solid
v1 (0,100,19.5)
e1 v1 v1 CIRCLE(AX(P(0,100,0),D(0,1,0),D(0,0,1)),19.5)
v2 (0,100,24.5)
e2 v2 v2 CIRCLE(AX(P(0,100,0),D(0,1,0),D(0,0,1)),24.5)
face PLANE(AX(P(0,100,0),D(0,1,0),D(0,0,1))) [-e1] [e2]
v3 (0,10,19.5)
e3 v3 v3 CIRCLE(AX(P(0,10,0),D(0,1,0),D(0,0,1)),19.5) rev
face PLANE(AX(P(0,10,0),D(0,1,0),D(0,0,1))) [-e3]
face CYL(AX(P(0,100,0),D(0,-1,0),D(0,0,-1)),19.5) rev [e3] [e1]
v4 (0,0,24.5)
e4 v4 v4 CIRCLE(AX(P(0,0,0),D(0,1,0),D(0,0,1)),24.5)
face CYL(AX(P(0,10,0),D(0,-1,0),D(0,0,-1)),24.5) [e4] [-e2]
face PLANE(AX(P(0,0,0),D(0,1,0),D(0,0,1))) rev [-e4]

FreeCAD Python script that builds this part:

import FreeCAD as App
import Part
import Sketcher
from FreeCAD import Vector

doc = App.newDocument("Part")
body = doc.addObject("PartDesign::Body", "Body")

# Sketch on XZ plane
sketch1 = body.newObject("Sketcher::SketchObject", "Sketch")
sketch1.AttachmentSupport = (doc.getObject("XZ_Plane"), [""])
sketch1.MapMode = "FlatFace"
sketch1.addGeometry(Part.Circle(Vector(0, 0, 0), Vector(0, 0, 1), 24), False)
sketch1.addConstraint(Sketcher.Constraint("Coincident", 0, 3, -1, 1))
sketch1.addConstraint(Sketcher.Constraint("Diameter", 0, 49.0))
pad1 = body.newObject("PartDesign::Pad", "Pad")
pad1.Profile = sketch1
pad1.Length = 10
pad1.Reversed = True

# Sketch on XZ plane
sketch2 = body.newObject("Sketcher::SketchObject", "Sketch001")
sketch2.AttachmentSupport = (doc.getObject("XZ_Plane"), [""])
sketch2.MapMode = "FlatFace"
sketch2.AttachmentOffset = App.Placement(Vector(0, 0, -10), App.Rotation())
sketch2.addGeometry(Part.Circle(Vector(0, 0, 0), Vector(0, 0, 1), 24), False)
sketch2.addGeometry(Part.Circle(Vector(0, 0, 0), Vector(0, 0, 1), 20), False)
sketch2.addConstraint(Sketcher.Constraint("Coincident", 0, 3, -1, 1))
sketch2.addConstraint(Sketcher.Constraint("Coincident", 1, 3, -1, 1))
sketch2.addConstraint(Sketcher.Constraint("Diameter", 0, 49.0))
sketch2.addConstraint(Sketcher.Constraint("Diameter", 1, 39.0))
pad2 = body.newObject("PartDesign::Pad", "Pad001")
pad2.Profile = sketch2
pad2.Length = 90
pad2.Reversed = True

doc.recompute()
